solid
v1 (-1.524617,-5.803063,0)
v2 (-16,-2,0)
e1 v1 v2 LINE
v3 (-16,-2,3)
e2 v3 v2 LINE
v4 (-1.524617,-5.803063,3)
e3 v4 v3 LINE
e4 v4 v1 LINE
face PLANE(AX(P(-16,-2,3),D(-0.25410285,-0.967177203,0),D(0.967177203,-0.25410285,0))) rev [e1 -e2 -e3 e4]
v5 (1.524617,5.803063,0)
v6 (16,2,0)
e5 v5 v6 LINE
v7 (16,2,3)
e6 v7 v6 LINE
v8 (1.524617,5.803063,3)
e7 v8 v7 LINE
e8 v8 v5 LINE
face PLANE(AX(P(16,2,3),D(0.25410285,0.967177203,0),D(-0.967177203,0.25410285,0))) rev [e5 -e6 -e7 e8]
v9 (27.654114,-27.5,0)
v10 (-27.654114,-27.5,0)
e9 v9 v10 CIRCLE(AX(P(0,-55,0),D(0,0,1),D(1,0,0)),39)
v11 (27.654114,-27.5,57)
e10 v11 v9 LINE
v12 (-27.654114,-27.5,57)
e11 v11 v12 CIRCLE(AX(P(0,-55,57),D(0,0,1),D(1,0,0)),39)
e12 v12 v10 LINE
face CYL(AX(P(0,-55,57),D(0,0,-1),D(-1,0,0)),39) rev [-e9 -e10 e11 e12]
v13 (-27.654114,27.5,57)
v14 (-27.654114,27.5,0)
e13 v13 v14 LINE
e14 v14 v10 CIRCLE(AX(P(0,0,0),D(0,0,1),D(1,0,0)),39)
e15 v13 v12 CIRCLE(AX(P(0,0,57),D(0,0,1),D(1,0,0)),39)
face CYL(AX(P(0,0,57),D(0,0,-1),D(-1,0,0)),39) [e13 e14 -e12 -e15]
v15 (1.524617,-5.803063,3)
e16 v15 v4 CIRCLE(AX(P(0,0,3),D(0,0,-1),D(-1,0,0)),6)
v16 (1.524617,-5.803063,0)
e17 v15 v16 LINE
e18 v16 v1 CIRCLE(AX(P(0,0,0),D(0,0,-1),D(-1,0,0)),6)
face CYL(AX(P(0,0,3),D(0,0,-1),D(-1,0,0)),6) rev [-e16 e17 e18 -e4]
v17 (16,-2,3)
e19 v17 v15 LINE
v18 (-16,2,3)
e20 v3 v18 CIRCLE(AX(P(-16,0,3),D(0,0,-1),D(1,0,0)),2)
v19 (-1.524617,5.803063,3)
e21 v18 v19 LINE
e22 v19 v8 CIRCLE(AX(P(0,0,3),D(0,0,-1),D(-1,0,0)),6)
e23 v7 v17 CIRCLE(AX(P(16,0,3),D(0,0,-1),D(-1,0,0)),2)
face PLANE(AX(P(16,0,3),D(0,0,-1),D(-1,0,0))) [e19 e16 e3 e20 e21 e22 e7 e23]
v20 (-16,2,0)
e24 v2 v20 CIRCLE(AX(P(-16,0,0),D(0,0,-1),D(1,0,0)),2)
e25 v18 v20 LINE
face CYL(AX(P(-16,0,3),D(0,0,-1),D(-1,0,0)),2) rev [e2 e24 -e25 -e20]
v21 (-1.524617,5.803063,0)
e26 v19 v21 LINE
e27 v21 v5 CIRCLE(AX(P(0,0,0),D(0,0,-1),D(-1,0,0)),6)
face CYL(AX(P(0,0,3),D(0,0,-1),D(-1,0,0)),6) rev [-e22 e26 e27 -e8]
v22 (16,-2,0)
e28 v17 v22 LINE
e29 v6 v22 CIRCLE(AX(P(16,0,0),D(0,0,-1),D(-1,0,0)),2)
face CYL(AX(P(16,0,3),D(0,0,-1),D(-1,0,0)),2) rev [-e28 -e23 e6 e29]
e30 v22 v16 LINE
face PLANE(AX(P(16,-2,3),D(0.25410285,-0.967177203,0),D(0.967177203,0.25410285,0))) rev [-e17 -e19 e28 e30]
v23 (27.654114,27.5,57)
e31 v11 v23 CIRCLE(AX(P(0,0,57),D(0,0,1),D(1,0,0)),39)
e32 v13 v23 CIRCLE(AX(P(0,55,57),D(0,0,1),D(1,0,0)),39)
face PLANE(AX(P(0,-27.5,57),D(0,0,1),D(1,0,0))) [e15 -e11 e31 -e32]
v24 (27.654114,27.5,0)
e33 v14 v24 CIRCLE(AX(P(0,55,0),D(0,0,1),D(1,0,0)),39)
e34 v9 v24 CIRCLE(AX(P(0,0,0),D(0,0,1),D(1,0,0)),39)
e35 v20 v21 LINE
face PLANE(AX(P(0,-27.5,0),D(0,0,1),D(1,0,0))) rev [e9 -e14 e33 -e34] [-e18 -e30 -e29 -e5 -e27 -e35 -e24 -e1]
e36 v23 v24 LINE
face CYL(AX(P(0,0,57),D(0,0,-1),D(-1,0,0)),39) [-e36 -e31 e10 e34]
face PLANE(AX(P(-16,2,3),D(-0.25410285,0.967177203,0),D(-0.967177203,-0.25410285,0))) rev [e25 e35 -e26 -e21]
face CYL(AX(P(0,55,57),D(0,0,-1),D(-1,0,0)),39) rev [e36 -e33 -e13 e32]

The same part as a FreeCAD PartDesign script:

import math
import FreeCAD as App
import Part
import Sketcher

doc = App.newDocument("Part")
body = doc.addObject("PartDesign::Body", "Body")

sketch1 = body.newObject("Sketcher::SketchObject", "Sketch")
sketch1.AttachmentSupport = (doc.getObject("XY_Plane"), [""])
sketch1.MapMode = "FlatFace"
sketch1.addGeometry([
    Part.ArcOfCircle(Part.Circle(App.Vector(0, 0, 0), App.Vector(0, 0, 1), 39), math.radians(135.160098), math.radians(224.839902)),
    Part.ArcOfCircle(Part.Circle(App.Vector(0, -55, 0), App.Vector(0, 0, 1), 39), math.radians(44.839902), math.radians(135.160098)),
    Part.ArcOfCircle(Part.Circle(App.Vector(0, 0, 0), App.Vector(0, 0, 1), 39), math.radians(-44.839902), math.radians(44.839902)),
    Part.ArcOfCircle(Part.Circle(App.Vector(0, 55, 0), App.Vector(0, 0, 1), 39), math.radians(-135.160098), math.radians(-44.839902)),
], False)
sketch1.addConstraint([
    Sketcher.Constraint("Coincident", 0, 2, 1, 2),
    Sketcher.Constraint("Coincident", 1, 1, 2, 1),
    Sketcher.Constraint("Coincident", 2, 2, 3, 2),
    Sketcher.Constraint("Coincident", 3, 1, 0, 1),
    Sketcher.Constraint("Coincident", 0, 3, -1, 1),
    Sketcher.Constraint("Coincident", 2, 3, -1, 1),
    Sketcher.Constraint("Equal", 0, 1),
    Sketcher.Constraint("Equal", 1, 2),
    Sketcher.Constraint("Equal", 2, 3),
    Sketcher.Constraint("Symmetric", 1, 3, 3, 3, -1, 1),
    Sketcher.Constraint("PointOnObject", 1, 3, -2),
    Sketcher.Constraint("Radius", 0, 39.0),
    Sketcher.Constraint("DistanceY", 1, 3, -1, 1, 55.0),
])
pad1 = body.newObject("PartDesign::Pad", "Pad")
pad1.Profile = sketch1
pad1.Length = 57

sketch2 = body.newObject("Sketcher::SketchObject", "Sketch001")
sketch2.AttachmentSupport = (doc.getObject("XY_Plane"), [""])
sketch2.MapMode = "FlatFace"
sketch2.addGeometry([
    Part.LineSegment(App.Vector(-16, 2, 0), App.Vector(-1.524617, 5.803063, 0)),
    Part.ArcOfCircle(Part.Circle(App.Vector(0, 0, 0), App.Vector(0, 0, 1), 6), math.radians(75.279569), math.radians(104.720431)),
    Part.LineSegment(App.Vector(1.524617, 5.803063, 0), App.Vector(16, 2, 0)),
    Part.ArcOfCircle(Part.Circle(App.Vector(16, 0, 0), App.Vector(0, 0, 1), 2), math.radians(-90), math.radians(90)),
    Part.LineSegment(App.Vector(16, -2, 0), App.Vector(1.524617, -5.803063, 0)),
    Part.ArcOfCircle(Part.Circle(App.Vector(0, 0, 0), App.Vector(0, 0, 1), 6), math.radians(-104.720431), math.radians(-75.279569)),
    Part.LineSegment(App.Vector(-1.524617, -5.803063, 0), App.Vector(-16, -2, 0)),
    Part.ArcOfCircle(Part.Circle(App.Vector(-16, 0, 0), App.Vector(0, 0, 1), 2), math.radians(90), math.radians(270)),
], False)
sketch2.addConstraint([
    Sketcher.Constraint("Tangent", 0, 2, 1, 2),
    Sketcher.Constraint("Tangent", 1, 1, 2, 1),
    Sketcher.Constraint("Coincident", 2, 2, 3, 2),
    Sketcher.Constraint("Coincident", 3, 1, 4, 1),
    Sketcher.Constraint("Tangent", 4, 2, 5, 2),
    Sketcher.Constraint("Tangent", 5, 1, 6, 1),
    Sketcher.Constraint("Coincident", 6, 2, 7, 2),
    Sketcher.Constraint("Coincident", 7, 1, 0, 1),
    Sketcher.Constraint("Coincident", 1, 3, -1, 1),
    Sketcher.Constraint("Coincident", 5, 3, -1, 1),
    Sketcher.Constraint("Equal", 1, 5),
    Sketcher.Constraint("Equal", 3, 7),
    Sketcher.Constraint("Symmetric", 3, 3, 7, 3, -1, 1),
    Sketcher.Constraint("Symmetric", 3, 1, 6, 2, -2),
    Sketcher.Constraint("Parallel", 0, 4),
    Sketcher.Constraint("Parallel", 2, 6),
    Sketcher.Constraint("Vertical", 3, 3, 2, 2),
    Sketcher.Constraint("Radius", 1, 6.0),
    Sketcher.Constraint("Radius", 3, 2.0),
    Sketcher.Constraint("DistanceX", -1, 1, 3, 3, 16.0),
])
pocket1 = body.newObject("PartDesign::Pocket", "Pocket")
pocket1.Profile = sketch2
pocket1.Length = 3
pocket1.Reversed = True

doc.recompute()
